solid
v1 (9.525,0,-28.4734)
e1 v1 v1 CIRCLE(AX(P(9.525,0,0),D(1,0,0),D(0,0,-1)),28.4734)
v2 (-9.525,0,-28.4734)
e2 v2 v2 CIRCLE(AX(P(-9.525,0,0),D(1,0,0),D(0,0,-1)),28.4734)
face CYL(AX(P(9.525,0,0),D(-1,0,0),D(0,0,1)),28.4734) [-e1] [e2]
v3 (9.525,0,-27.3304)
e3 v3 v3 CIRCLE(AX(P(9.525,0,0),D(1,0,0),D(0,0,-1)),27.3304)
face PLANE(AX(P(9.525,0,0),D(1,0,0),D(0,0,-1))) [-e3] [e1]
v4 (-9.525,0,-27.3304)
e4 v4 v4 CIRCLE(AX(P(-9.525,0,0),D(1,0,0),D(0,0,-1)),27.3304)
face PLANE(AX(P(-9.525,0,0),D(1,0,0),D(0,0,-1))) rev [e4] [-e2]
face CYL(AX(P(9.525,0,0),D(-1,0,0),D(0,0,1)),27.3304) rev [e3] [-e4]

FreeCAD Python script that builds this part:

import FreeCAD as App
import Part
import Sketcher
from FreeCAD import Vector
Q = App.Units.Quantity

doc = App.newDocument("Part")
body = doc.addObject("PartDesign::Body", "Body")

sketch1 = body.newObject("Sketcher::SketchObject", "Sketch")
sketch1.AttachmentSupport = (doc.getObject("YZ_Plane"), [""])
sketch1.MapMode = "FlatFace"
sketch1.addGeometry([
    Part.Circle(Vector(0, 0, 0), Vector(0, 0, 1), 28.4734),
    Part.Circle(Vector(0, 0, 0), Vector(0, 0, 1), 27.3304),
], False)
sketch1.addConstraint([
    Sketcher.Constraint("Coincident", 0, 3, -1, 1),
    Sketcher.Constraint("Coincident", 1, 3, -1, 1),
    Sketcher.Constraint("Diameter", 0, Q("2.242 in")),
    Sketcher.Constraint("Diameter", 1, Q("2.152 in")),
])
pad1 = body.newObject("PartDesign::Pad", "Pad")
pad1.Profile = sketch1
pad1.Length = Q("0.75 in")
pad1.Midplane = True

doc.recompute()
